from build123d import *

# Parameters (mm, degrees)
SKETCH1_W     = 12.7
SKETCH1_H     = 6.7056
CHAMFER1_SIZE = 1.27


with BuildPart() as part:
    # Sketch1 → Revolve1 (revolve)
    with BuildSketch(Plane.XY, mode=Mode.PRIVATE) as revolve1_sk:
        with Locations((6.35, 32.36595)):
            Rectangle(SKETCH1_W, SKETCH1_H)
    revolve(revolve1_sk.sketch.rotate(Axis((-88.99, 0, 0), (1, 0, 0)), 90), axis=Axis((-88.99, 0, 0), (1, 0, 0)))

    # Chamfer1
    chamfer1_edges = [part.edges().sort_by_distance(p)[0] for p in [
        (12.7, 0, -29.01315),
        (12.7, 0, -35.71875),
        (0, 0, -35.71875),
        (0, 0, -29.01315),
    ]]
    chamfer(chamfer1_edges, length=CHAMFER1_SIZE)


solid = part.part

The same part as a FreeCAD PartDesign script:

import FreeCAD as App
import Part
import Sketcher
from FreeCAD import Vector
Q = App.Units.Quantity


def edges_at(feature, points):
    """Names of the edges that pass closest to the given points."""
    edges = feature.Shape.Edges
    near = lambda p: min(range(len(edges)), key=lambda i: edges[i].distToShape(Part.Vertex(*p))[0])
    return sorted({f"Edge{near(p) + 1}" for p in points})


def add_polygon(sketch, points):
    """Adds a closed chain of lines whose ends are joined by coincident constraints."""
    first, n = sketch.GeometryCount, len(points)
    for a, b in zip(points, points[1:] + points[:1]):
        sketch.addGeometry(Part.LineSegment(App.Vector(*a, 0), App.Vector(*b, 0)), False)
    for i in range(n):
        sketch.addConstraint(Sketcher.Constraint("Coincident", first + i, 2, first + (i + 1) % n, 1))

doc = App.newDocument("Part")
body = doc.addObject("PartDesign::Body", "Body")

# Sketch on XY plane
sketch1 = doc.addObject("Sketcher::SketchObject", "Sketch")
body.addObject(sketch1)
sketch1.AttachmentSupport = (doc.XY_Plane, [""])
sketch1.MapMode = "FlatFace"
add_polygon(sketch1, [(0, 36), (0, 29), (13, 29), (13, 36)])  # lines 0-3
sketch1.addConstraint(Sketcher.Constraint("Vertical", 0))
sketch1.addConstraint(Sketcher.Constraint("Horizontal", 1))
sketch1.addConstraint(Sketcher.Constraint("Vertical", 2))
sketch1.addConstraint(Sketcher.Constraint("Horizontal", 3))
sketch1.addConstraint(Sketcher.Constraint("PointOnObject", 0, 2, -2))
sketch1.addConstraint(Sketcher.Constraint("DistanceX", 1, 1, 1, 2, Q("0.5 in")))
sketch1.addConstraint(Sketcher.Constraint("DistanceY", 0, 2, 0, 1, Q("0.264 in")))
sketch1.addConstraint(Sketcher.Constraint("DistanceY", -1, 1, 2, 2, Q("1.40625 in")))
revolution = doc.addObject("PartDesign::Revolution", "Revolution")
body.addObject(revolution)
revolution.Profile = sketch1
revolution.ReferenceAxis = (sketch1, ["H_Axis"])
revolution.Angle = 360
doc.recompute()

chamfer = doc.addObject("PartDesign::Chamfer", "Chamfer")
body.addObject(chamfer)
chamfer.Base = (revolution, edges_at(revolution, [
    (12.7, 0, -29.013),
    (12.7, 0, -35.719),
    (0, 0, -35.719),
    (0, 0, -29.013),
]))
chamfer.Size = Q("0.05 in")

doc.recompute()
